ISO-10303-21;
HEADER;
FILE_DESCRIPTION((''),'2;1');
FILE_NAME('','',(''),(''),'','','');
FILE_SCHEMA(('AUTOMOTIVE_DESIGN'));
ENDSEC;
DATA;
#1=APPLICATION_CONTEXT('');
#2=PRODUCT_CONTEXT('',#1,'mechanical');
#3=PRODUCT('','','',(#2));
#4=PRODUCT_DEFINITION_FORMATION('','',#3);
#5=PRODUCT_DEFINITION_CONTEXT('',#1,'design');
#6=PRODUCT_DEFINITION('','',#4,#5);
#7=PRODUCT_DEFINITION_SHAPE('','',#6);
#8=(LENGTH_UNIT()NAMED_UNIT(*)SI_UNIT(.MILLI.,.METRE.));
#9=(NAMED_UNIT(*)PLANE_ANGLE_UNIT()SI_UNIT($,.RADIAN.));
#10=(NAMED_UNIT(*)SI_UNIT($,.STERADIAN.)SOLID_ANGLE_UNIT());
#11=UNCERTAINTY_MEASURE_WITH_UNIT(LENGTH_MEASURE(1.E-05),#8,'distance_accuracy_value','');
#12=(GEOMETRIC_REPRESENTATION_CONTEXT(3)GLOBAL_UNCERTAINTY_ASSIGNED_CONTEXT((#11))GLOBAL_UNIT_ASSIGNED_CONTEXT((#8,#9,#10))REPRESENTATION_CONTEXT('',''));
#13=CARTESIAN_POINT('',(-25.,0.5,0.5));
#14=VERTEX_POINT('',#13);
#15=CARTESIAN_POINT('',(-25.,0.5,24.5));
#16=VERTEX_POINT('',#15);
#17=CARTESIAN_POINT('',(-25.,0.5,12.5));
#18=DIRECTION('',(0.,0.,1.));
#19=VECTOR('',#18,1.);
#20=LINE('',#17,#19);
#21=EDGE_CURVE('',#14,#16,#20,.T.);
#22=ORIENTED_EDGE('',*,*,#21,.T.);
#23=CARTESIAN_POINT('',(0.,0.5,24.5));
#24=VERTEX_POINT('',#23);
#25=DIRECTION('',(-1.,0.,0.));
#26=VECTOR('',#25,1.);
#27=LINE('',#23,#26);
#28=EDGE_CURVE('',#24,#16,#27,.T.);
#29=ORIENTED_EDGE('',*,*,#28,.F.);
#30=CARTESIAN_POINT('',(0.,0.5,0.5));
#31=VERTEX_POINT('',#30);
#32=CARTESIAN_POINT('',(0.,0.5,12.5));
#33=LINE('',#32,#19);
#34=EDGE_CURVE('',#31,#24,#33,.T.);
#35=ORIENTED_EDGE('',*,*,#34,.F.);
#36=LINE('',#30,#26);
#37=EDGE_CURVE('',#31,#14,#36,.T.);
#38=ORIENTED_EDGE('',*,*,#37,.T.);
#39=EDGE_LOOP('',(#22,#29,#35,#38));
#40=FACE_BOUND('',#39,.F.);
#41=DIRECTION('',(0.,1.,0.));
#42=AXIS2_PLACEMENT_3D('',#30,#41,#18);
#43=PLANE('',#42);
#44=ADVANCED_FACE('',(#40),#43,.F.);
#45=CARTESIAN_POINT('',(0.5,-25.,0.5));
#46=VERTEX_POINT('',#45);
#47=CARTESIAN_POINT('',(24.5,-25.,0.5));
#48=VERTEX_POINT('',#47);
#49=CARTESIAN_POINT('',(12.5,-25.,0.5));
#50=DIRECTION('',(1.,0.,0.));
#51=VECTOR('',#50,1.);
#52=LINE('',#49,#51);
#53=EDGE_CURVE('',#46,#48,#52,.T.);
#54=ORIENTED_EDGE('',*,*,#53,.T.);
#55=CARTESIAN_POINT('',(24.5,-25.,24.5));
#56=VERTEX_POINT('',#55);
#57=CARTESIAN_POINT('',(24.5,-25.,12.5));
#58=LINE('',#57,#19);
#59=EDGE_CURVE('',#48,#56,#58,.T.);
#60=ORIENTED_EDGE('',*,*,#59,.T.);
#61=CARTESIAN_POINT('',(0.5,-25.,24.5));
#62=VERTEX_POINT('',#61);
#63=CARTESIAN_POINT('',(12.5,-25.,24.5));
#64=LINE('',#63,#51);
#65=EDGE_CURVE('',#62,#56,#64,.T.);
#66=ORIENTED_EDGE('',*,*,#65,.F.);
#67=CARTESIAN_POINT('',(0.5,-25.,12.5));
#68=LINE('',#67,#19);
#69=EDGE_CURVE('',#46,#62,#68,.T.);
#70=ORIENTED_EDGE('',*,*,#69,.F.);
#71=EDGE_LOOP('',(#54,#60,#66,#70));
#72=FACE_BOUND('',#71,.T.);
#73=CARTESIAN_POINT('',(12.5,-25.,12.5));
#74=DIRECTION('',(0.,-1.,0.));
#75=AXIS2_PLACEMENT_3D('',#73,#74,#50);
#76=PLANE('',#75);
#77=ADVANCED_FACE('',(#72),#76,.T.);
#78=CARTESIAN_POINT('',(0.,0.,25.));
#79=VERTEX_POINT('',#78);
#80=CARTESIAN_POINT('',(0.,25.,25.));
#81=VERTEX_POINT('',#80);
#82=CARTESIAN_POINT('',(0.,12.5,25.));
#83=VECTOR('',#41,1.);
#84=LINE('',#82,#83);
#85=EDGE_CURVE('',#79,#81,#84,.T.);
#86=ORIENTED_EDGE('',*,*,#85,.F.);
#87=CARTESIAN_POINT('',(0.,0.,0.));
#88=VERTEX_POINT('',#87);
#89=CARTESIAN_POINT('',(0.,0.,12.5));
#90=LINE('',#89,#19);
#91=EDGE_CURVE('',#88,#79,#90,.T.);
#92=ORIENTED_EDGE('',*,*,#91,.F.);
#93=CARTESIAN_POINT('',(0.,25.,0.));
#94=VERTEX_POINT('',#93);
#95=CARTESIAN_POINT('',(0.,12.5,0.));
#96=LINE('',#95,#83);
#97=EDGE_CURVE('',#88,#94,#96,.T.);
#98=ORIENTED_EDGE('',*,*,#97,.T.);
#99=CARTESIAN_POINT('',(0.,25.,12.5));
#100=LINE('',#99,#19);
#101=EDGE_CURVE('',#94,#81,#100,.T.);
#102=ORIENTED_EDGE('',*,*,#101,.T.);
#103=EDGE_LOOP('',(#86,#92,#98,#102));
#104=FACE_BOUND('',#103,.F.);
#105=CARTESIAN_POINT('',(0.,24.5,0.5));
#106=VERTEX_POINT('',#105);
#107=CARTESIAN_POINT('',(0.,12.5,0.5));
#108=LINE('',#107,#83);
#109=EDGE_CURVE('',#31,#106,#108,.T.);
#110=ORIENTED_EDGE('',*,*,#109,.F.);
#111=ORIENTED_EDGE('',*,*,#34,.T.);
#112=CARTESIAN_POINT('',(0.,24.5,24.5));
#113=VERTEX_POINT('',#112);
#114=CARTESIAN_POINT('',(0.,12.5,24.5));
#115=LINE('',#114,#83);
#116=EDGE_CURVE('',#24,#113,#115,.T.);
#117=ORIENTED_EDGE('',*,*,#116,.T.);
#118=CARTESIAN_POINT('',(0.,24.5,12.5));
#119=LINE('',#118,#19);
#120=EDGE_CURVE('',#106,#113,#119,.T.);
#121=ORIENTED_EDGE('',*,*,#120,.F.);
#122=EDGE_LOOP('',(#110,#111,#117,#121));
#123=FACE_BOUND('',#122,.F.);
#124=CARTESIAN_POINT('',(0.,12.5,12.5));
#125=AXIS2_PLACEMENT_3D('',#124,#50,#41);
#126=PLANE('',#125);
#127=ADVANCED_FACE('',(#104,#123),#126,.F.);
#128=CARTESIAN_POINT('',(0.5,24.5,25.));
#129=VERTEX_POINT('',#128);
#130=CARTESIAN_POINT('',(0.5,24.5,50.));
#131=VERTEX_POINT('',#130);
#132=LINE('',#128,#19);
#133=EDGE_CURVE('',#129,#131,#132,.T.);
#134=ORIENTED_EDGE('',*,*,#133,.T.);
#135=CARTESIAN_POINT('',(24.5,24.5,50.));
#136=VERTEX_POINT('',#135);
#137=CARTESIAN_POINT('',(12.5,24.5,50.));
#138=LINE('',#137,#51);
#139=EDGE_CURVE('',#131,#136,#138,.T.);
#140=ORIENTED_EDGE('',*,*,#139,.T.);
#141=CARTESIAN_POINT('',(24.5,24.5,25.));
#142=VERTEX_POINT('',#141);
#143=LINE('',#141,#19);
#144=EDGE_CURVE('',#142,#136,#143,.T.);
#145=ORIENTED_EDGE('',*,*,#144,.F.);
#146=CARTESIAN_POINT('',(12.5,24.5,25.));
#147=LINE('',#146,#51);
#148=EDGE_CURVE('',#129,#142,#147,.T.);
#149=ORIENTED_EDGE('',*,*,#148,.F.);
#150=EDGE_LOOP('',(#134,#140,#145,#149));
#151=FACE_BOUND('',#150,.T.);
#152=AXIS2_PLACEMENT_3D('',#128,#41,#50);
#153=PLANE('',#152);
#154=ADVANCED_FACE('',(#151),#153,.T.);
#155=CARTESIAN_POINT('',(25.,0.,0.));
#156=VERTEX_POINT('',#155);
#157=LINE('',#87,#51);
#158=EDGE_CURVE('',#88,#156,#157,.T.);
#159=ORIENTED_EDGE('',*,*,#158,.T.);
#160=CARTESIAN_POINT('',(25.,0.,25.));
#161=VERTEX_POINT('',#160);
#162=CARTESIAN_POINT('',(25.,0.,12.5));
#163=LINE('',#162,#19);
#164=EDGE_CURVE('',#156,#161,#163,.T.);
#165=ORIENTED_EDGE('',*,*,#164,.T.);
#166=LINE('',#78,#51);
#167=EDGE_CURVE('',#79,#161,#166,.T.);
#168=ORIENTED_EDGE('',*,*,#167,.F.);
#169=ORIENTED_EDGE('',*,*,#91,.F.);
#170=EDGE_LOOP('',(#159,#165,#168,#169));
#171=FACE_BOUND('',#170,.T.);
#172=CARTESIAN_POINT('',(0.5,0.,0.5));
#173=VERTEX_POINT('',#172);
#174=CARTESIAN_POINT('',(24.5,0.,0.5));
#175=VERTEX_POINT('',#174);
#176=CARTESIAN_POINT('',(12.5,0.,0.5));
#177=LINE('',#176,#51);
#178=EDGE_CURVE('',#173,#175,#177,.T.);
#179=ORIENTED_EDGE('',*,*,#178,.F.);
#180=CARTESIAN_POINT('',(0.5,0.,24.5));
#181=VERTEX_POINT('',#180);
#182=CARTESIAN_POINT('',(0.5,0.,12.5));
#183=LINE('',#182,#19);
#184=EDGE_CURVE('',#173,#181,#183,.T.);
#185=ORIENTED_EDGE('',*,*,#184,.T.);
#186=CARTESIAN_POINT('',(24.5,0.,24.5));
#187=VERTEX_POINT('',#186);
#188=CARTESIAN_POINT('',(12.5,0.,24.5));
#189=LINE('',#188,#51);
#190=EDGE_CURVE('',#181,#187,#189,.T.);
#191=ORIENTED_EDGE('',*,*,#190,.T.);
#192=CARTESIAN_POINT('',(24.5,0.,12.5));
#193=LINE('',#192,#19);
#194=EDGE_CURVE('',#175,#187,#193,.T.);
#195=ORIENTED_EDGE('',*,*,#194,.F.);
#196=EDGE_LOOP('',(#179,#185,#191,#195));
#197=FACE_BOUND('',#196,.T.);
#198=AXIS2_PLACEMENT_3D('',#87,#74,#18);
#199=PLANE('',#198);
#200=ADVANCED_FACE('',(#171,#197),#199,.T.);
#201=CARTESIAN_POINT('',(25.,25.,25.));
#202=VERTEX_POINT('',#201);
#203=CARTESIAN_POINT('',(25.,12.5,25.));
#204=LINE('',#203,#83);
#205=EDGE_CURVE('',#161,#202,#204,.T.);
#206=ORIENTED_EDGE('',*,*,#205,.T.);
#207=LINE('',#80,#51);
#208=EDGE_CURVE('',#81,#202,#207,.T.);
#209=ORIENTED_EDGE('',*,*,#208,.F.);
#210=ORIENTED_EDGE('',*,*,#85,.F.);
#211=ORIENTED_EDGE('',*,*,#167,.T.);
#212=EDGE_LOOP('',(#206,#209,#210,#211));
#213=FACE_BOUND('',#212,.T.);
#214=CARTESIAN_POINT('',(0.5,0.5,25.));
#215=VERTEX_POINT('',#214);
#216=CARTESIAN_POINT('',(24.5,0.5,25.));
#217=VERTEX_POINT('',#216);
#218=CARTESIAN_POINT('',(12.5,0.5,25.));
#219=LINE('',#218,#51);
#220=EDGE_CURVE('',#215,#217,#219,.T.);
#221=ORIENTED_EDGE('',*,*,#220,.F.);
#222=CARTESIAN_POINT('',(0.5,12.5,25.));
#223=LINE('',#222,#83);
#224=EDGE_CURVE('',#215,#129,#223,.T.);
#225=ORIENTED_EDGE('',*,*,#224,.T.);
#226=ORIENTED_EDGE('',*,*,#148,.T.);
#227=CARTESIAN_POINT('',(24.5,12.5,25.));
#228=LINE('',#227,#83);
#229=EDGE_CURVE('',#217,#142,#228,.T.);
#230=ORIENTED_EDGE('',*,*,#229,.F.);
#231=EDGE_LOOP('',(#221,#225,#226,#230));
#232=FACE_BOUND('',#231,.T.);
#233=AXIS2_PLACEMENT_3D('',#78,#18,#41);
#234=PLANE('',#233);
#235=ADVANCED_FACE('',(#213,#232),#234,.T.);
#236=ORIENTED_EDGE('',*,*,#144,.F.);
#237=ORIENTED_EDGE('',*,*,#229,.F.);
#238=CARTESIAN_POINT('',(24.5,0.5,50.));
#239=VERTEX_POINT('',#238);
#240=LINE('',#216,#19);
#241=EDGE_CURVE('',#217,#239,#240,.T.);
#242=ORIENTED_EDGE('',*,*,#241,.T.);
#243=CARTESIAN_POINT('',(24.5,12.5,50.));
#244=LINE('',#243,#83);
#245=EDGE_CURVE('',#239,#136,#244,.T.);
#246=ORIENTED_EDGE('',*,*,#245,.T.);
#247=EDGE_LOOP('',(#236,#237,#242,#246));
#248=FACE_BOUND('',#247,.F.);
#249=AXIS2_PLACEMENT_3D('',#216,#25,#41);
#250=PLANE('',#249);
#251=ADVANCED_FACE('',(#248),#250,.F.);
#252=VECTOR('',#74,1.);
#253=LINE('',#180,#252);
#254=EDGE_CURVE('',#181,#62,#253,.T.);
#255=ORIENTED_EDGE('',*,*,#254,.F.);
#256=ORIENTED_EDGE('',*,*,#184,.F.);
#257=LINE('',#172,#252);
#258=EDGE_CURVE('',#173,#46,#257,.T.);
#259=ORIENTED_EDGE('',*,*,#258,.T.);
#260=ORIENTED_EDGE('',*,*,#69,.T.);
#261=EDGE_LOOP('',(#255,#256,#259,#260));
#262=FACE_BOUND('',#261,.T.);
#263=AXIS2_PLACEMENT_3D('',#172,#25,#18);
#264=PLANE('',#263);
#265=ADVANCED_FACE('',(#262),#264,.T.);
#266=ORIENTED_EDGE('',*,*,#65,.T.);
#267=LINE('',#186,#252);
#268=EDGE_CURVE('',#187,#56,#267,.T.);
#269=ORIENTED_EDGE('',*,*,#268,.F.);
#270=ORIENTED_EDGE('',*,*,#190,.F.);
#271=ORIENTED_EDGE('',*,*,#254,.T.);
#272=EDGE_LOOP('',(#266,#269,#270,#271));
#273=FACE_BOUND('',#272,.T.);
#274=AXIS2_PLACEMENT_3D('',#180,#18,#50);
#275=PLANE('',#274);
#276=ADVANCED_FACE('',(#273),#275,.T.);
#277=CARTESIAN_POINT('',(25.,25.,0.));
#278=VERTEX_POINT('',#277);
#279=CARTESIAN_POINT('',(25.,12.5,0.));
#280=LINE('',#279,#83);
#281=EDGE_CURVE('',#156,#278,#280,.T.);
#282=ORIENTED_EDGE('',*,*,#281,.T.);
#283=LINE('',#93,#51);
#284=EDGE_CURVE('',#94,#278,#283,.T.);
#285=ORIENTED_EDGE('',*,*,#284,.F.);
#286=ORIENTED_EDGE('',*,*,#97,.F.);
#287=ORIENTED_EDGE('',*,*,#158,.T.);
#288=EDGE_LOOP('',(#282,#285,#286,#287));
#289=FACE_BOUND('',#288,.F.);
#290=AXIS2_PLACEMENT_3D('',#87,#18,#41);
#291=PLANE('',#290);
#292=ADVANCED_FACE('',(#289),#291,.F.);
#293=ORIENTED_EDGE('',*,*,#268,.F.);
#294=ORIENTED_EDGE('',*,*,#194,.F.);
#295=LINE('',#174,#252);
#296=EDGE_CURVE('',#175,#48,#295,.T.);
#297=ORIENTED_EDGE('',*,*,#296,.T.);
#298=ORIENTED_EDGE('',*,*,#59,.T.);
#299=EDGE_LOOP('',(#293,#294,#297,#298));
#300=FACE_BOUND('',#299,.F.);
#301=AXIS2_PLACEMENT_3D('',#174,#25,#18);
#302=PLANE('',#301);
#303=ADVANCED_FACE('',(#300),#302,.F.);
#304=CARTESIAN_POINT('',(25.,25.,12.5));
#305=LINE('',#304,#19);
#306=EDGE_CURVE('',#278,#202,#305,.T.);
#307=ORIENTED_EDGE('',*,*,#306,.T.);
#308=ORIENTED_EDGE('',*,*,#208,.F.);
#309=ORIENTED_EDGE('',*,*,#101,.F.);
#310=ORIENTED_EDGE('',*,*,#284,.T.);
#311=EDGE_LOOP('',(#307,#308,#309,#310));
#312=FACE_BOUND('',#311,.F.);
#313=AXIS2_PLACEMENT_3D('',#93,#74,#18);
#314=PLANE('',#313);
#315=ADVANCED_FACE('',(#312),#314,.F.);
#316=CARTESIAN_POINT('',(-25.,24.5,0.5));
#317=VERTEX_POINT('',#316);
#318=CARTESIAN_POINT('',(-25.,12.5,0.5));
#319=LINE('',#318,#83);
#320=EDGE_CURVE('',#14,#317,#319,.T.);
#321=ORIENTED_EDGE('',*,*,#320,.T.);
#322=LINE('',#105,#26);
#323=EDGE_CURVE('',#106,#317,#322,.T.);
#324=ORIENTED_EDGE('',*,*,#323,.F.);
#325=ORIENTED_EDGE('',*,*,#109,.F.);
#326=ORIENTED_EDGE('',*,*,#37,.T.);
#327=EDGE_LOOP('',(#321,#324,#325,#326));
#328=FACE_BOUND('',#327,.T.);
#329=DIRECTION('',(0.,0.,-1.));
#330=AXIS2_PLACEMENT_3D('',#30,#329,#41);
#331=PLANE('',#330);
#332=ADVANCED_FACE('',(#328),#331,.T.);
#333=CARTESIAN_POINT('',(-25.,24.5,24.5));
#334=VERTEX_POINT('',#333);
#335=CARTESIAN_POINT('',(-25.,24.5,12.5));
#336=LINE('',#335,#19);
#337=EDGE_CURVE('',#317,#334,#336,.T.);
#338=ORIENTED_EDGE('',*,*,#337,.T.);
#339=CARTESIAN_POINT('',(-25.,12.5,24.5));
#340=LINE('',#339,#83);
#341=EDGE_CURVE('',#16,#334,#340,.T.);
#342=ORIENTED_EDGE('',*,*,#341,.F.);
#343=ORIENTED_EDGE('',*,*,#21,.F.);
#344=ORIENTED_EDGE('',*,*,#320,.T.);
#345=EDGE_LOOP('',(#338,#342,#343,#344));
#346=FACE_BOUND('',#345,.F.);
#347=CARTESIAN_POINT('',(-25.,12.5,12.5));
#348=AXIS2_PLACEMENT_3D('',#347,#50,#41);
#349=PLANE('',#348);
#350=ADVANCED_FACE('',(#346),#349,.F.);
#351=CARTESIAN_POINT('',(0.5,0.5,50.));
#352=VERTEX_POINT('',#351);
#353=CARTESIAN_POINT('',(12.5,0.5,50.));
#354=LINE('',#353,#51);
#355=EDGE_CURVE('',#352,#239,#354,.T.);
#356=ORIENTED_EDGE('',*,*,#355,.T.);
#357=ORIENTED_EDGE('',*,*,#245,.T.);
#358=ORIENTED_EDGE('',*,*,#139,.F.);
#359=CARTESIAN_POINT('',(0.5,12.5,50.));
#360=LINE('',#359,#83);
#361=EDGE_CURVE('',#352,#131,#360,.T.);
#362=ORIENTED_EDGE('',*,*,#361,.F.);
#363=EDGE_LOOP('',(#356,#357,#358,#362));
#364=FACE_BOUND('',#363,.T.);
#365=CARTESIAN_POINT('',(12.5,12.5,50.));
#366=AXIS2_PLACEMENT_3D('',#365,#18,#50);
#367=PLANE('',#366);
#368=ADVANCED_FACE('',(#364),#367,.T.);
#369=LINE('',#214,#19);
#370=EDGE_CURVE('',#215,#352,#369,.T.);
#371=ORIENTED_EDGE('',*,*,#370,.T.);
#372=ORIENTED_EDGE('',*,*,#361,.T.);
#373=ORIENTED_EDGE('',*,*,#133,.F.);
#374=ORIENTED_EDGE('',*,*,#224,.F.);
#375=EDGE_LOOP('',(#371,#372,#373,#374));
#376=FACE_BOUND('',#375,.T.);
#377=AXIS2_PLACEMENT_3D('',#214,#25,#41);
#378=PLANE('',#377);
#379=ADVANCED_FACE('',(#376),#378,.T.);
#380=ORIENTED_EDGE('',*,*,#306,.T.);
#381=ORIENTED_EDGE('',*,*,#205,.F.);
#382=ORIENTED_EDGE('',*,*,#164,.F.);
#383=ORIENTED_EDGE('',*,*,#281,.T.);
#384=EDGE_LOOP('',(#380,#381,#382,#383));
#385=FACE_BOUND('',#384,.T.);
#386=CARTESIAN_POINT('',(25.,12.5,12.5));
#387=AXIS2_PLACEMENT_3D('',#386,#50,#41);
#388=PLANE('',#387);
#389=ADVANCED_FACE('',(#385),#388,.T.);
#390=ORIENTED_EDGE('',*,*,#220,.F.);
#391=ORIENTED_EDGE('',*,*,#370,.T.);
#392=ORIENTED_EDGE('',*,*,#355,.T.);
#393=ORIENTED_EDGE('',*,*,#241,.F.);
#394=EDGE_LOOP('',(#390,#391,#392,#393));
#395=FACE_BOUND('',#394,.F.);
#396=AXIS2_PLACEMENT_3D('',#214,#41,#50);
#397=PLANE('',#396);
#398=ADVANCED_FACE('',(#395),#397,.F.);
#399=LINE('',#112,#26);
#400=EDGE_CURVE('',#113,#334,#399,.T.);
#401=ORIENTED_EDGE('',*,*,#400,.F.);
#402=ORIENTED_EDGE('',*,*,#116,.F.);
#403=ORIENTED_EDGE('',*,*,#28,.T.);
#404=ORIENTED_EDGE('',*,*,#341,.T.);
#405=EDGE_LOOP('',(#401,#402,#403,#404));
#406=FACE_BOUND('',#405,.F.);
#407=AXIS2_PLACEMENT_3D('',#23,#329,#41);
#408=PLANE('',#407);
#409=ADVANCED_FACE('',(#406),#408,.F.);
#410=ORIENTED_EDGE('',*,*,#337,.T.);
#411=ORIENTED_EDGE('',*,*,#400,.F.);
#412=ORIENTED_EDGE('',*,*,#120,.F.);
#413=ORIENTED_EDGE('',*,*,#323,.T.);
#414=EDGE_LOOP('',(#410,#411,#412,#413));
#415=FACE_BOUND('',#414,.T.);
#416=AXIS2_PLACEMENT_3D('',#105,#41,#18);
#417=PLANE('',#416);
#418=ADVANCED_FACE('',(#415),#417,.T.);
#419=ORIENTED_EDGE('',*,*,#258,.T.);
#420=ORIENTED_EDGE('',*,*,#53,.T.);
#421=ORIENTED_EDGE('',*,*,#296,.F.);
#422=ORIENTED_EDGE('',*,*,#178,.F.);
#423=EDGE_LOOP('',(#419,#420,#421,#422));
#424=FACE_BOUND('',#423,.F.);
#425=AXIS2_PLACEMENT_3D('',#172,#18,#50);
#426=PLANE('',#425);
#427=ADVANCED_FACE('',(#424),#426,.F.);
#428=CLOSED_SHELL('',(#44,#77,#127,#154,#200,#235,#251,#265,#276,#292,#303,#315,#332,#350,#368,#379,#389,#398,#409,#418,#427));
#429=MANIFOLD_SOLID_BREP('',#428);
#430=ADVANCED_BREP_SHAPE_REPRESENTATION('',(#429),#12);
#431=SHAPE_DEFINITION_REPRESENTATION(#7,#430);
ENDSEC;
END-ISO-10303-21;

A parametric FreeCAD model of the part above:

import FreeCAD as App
import Part
import Sketcher

V = App.Vector

doc = App.newDocument("Part")
body = doc.addObject("PartDesign::Body", "Body")

# Sketch on YZ plane
sketch1 = body.newObject("Sketcher::SketchObject", "Sketch")
sketch1.AttachmentSupport = (doc.getObject("YZ_Plane"), [""])
sketch1.MapMode = "FlatFace"
sketch1.addGeometry(Part.LineSegment(V(0, 25, 0), V(0, 0, 0)), False)
sketch1.addGeometry(Part.LineSegment(V(0, 0, 0), V(25, 0, 0)), False)
sketch1.addGeometry(Part.LineSegment(V(25, 0, 0), V(25, 25, 0)), False)
sketch1.addGeometry(Part.LineSegment(V(25, 25, 0), V(0, 25, 0)), False)
sketch1.addConstraint(Sketcher.Constraint("Coincident", 0, 2, 1, 1))
sketch1.addConstraint(Sketcher.Constraint("Coincident", 1, 2, 2, 1))
sketch1.addConstraint(Sketcher.Constraint("Coincident", 2, 2, 3, 1))
sketch1.addConstraint(Sketcher.Constraint("Coincident", 3, 2, 0, 1))
sketch1.addConstraint(Sketcher.Constraint("Vertical", 0))
sketch1.addConstraint(Sketcher.Constraint("Horizontal", 1))
sketch1.addConstraint(Sketcher.Constraint("Vertical", 2))
sketch1.addConstraint(Sketcher.Constraint("Horizontal", 3))
sketch1.addConstraint(Sketcher.Constraint("Coincident", 0, 2, -1, 1))
sketch1.addConstraint(Sketcher.Constraint("Equal", 3, 0))
sketch1.addConstraint(Sketcher.Constraint("DistanceX", 1, 1, 1, 2, 25.0))
pad1 = body.newObject("PartDesign::Pad", "Pad")
pad1.Profile = sketch1
pad1.Length = 25

# Sketch on YZ plane
sketch2 = body.newObject("Sketcher::SketchObject", "Sketch001")
sketch2.AttachmentSupport = (doc.getObject("YZ_Plane"), [""])
sketch2.MapMode = "FlatFace"
sketch2.addGeometry(Part.LineSegment(V(0, 24, 0), V(0, 0, 0)), False)
sketch2.addGeometry(Part.LineSegment(V(0, 0, 0), V(24, 0, 0)), False)
sketch2.addGeometry(Part.LineSegment(V(24, 0, 0), V(24, 24, 0)), False)
sketch2.addGeometry(Part.LineSegment(V(24, 24, 0), V(0, 24, 0)), False)
sketch2.addConstraint(Sketcher.Constraint("Coincident", 0, 2, 1, 1))
sketch2.addConstraint(Sketcher.Constraint("Coincident", 1, 2, 2, 1))
sketch2.addConstraint(Sketcher.Constraint("Coincident", 2, 2, 3, 1))
sketch2.addConstraint(Sketcher.Constraint("Coincident", 3, 2, 0, 1))
sketch2.addConstraint(Sketcher.Constraint("Vertical", 0))
sketch2.addConstraint(Sketcher.Constraint("Horizontal", 1))
sketch2.addConstraint(Sketcher.Constraint("Vertical", 2))
sketch2.addConstraint(Sketcher.Constraint("Horizontal", 3))
sketch2.addConstraint(Sketcher.Constraint("Equal", 3, 0))
sketch2.addConstraint(Sketcher.Constraint("DistanceX", 1, 1, 1, 2, 24.0))
sketch2.addConstraint(Sketcher.Constraint("DistanceX", -1, 1, 0, 2, 0.5))
sketch2.addConstraint(Sketcher.Constraint("DistanceY", -1, 1, 0, 2, 0.5))
pad2 = body.newObject("PartDesign::Pad", "Pad001")
pad2.Profile = sketch2
pad2.Length = 25
pad2.Reversed = True

# Sketch on XZ plane
sketch3 = body.newObject("Sketcher::SketchObject", "Sketch002")
sketch3.AttachmentSupport = (doc.getObject("XZ_Plane"), [""])
sketch3.MapMode = "FlatFace"
sketch3.addGeometry(Part.LineSegment(V(0, 24, 0), V(0, 0, 0)), False)
sketch3.addGeometry(Part.LineSegment(V(0, 0, 0), V(24, 0, 0)), False)
sketch3.addGeometry(Part.LineSegment(V(24, 0, 0), V(24, 24, 0)), False)
sketch3.addGeometry(Part.LineSegment(V(24, 24, 0), V(0, 24, 0)), False)
sketch3.addConstraint(Sketcher.Constraint("Coincident", 0, 2, 1, 1))
sketch3.addConstraint(Sketcher.Constraint("Coincident", 1, 2, 2, 1))
sketch3.addConstraint(Sketcher.Constraint("Coincident", 2, 2, 3, 1))
sketch3.addConstraint(Sketcher.Constraint("Coincident", 3, 2, 0, 1))
sketch3.addConstraint(Sketcher.Constraint("Vertical", 0))
sketch3.addConstraint(Sketcher.Constraint("Horizontal", 1))
sketch3.addConstraint(Sketcher.Constraint("Vertical", 2))
sketch3.addConstraint(Sketcher.Constraint("Horizontal", 3))
sketch3.addConstraint(Sketcher.Constraint("Equal", 3, 0))
sketch3.addConstraint(Sketcher.Constraint("DistanceX", 1, 1, 1, 2, 24.0))
sketch3.addConstraint(Sketcher.Constraint("DistanceX", -1, 1, 0, 2, 0.5))
sketch3.addConstraint(Sketcher.Constraint("DistanceY", -1, 1, 0, 2, 0.5))
pad3 = body.newObject("PartDesign::Pad", "Pad002")
pad3.Profile = sketch3
pad3.Length = 25

# Sketch on XY plane
sketch4 = body.newObject("Sketcher::SketchObject", "Sketch003")
sketch4.AttachmentSupport = (doc.getObject("XY_Plane"), [""])
sketch4.MapMode = "FlatFace"
sketch4.AttachmentOffset = App.Placement(V(0, 0, 25), App.Rotation())
sketch4.addGeometry(Part.LineSegment(V(0, 24, 0), V(0, 0, 0)), False)
sketch4.addGeometry(Part.LineSegment(V(0, 0, 0), V(24, 0, 0)), False)
sketch4.addGeometry(Part.LineSegment(V(24, 0, 0), V(24, 24, 0)), False)
sketch4.addGeometry(Part.LineSegment(V(24, 24, 0), V(0, 24, 0)), False)
sketch4.addConstraint(Sketcher.Constraint("Coincident", 0, 2, 1, 1))
sketch4.addConstraint(Sketcher.Constraint("Coincident", 1, 2, 2, 1))
sketch4.addConstraint(Sketcher.Constraint("Coincident", 2, 2, 3, 1))
sketch4.addConstraint(Sketcher.Constraint("Coincident", 3, 2, 0, 1))
sketch4.addConstraint(Sketcher.Constraint("Vertical", 0))
sketch4.addConstraint(Sketcher.Constraint("Horizontal", 1))
sketch4.addConstraint(Sketcher.Constraint("Vertical", 2))
sketch4.addConstraint(Sketcher.Constraint("Horizontal", 3))
sketch4.addConstraint(Sketcher.Constraint("Equal", 3, 0))
sketch4.addConstraint(Sketcher.Constraint("DistanceX", 1, 1, 1, 2, 24.0))
sketch4.addConstraint(Sketcher.Constraint("DistanceX", -1, 1, 0, 2, 0.5))
sketch4.addConstraint(Sketcher.Constraint("DistanceY", -1, 1, 0, 2, 0.5))
pad4 = body.newObject("PartDesign::Pad", "Pad003")
pad4.Profile = sketch4
pad4.Length = 25

doc.recompute()
